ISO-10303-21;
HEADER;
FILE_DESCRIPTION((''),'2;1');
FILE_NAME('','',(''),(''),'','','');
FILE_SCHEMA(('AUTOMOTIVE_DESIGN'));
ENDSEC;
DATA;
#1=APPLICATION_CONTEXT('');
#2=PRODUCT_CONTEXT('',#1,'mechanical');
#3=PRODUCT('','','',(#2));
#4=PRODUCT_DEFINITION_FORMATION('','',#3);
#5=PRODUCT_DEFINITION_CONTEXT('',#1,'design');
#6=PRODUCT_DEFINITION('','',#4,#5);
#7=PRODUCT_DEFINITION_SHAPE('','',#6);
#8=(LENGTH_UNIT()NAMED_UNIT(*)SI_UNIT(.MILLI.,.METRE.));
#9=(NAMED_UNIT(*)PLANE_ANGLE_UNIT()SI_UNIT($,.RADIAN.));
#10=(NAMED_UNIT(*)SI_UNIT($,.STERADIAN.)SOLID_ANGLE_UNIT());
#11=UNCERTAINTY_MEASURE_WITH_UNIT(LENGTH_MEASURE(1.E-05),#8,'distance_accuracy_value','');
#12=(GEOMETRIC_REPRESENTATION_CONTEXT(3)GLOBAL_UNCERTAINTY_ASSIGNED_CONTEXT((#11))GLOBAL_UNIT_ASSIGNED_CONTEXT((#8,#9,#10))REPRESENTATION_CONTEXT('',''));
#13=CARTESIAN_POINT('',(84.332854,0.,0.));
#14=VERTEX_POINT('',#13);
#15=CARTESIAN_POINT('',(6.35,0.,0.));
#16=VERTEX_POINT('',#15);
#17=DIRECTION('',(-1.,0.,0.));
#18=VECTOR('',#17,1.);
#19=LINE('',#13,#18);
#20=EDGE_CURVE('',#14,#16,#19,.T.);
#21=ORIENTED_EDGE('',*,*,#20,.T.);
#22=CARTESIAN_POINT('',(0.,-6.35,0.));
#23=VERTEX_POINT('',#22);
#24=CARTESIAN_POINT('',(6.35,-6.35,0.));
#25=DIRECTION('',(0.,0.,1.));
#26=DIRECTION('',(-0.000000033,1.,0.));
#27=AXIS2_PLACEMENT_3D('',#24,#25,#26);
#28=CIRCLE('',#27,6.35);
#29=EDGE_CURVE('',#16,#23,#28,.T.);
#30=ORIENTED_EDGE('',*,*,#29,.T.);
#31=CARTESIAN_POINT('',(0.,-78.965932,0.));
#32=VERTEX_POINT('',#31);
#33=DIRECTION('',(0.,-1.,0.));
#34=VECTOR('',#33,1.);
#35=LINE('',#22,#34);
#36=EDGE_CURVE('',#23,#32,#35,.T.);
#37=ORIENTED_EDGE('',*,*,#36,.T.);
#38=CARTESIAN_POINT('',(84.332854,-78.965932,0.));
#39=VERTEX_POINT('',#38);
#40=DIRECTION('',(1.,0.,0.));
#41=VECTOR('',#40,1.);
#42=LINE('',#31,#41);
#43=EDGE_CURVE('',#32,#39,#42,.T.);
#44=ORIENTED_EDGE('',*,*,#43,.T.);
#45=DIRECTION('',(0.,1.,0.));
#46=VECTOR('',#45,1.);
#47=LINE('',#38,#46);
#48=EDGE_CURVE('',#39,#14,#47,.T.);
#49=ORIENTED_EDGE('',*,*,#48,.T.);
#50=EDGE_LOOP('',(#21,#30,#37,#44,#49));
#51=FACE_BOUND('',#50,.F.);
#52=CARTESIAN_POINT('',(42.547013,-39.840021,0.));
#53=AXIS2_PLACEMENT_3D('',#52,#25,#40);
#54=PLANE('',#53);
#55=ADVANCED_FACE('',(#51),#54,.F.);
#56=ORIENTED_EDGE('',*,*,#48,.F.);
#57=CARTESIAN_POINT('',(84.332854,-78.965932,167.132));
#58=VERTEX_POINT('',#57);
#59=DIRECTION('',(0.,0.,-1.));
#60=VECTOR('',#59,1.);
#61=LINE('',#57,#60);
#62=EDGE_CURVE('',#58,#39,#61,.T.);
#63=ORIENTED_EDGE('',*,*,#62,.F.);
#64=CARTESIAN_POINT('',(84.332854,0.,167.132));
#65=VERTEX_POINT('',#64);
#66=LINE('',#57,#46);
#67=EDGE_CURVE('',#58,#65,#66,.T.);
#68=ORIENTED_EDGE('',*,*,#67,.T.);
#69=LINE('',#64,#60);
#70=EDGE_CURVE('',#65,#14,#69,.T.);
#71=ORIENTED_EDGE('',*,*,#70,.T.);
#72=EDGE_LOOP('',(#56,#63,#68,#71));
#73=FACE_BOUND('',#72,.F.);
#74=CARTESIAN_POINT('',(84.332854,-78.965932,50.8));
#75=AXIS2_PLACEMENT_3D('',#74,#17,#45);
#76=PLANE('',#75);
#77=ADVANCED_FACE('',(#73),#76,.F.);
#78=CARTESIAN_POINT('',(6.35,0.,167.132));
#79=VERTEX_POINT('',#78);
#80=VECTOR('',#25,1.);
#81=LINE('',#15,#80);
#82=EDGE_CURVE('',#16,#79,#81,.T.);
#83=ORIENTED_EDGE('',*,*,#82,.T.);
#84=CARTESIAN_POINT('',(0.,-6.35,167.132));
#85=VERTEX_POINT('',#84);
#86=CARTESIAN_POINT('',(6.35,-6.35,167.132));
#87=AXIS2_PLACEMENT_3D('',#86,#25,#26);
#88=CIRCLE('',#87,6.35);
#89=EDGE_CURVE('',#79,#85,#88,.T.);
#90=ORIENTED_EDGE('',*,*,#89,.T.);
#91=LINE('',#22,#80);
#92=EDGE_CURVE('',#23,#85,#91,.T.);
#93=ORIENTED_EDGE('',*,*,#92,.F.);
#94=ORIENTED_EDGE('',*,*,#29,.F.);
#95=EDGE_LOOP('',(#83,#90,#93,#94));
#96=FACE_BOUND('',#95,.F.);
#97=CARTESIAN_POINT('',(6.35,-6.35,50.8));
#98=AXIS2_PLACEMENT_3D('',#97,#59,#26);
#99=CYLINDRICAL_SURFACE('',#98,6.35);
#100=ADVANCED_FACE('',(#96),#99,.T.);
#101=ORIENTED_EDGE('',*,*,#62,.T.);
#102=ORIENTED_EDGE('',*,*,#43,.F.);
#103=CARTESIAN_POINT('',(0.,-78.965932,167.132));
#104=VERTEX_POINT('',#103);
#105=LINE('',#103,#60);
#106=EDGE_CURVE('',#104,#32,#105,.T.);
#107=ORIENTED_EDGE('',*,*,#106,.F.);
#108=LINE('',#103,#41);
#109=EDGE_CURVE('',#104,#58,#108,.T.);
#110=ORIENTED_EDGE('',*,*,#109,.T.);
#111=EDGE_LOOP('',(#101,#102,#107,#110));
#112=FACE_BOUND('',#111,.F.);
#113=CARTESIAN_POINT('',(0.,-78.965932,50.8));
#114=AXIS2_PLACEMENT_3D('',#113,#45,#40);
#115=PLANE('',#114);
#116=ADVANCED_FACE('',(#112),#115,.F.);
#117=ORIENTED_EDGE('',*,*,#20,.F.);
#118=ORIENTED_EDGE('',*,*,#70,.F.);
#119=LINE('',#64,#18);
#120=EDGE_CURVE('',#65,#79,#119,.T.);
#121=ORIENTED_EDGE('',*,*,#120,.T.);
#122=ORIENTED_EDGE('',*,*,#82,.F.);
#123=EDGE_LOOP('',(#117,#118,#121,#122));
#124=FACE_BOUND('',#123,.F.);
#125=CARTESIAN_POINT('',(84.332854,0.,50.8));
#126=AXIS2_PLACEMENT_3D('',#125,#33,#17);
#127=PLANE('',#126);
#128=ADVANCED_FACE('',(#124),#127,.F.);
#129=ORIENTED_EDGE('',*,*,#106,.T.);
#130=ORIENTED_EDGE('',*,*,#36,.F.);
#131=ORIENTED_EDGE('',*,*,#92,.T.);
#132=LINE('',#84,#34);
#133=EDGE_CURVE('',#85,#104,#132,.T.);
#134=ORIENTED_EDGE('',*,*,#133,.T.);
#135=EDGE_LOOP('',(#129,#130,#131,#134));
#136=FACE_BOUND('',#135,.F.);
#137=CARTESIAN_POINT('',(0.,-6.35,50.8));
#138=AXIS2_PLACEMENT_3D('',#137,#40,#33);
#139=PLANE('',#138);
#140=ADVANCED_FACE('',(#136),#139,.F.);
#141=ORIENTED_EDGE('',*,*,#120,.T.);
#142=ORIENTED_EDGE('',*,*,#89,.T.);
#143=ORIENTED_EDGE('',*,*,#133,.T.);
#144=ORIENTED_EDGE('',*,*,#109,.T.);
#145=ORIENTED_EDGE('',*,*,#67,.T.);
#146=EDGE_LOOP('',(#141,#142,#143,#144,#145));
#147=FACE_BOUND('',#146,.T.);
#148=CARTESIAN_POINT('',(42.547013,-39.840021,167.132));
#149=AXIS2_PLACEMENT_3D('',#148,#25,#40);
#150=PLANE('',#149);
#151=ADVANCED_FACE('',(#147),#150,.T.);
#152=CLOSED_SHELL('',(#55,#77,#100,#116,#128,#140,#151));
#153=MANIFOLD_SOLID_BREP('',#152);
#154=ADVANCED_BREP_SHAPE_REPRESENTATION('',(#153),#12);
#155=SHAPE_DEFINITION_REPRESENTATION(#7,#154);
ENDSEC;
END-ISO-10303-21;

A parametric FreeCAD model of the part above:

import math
import FreeCAD as App
import Part
import Sketcher
Q = App.Units.Quantity

doc = App.newDocument("Part")
body = doc.addObject("PartDesign::Body", "Body")

# Sketch on XY plane
sketch1 = body.newObject("Sketcher::SketchObject", "Sketch")
sketch1.AttachmentSupport = (doc.getObject("XY_Plane"), [""])
sketch1.MapMode = "FlatFace"
sketch1.addGeometry([
    Part.LineSegment(App.Vector(84.332854, 0, 0), App.Vector(6.35, 0, 0)),  # 0
    Part.ArcOfCircle(Part.Circle(App.Vector(6.35, -6.35, 0), App.Vector(0, 0, 1), 6.35), math.radians(90.000002), math.radians(179.999998)),  # 1
    Part.LineSegment(App.Vector(0, -6.35, 0), App.Vector(0, -78.965932, 0)),  # 2
    Part.LineSegment(App.Vector(0, -78.965932, 0), App.Vector(84.332854, -78.965932, 0)),  # 3
    Part.LineSegment(App.Vector(84.332854, -78.965932, 0), App.Vector(84.332854, 0, 0)),  # 4
], False)
sketch1.addConstraint([
    Sketcher.Constraint("Tangent", 0, 2, 1, 1),
    Sketcher.Constraint("Tangent", 1, 2, 2, 1),
    Sketcher.Constraint("Coincident", 2, 2, 3, 1),
    Sketcher.Constraint("Coincident", 3, 2, 4, 1),
    Sketcher.Constraint("Coincident", 4, 2, 0, 1),
    Sketcher.Constraint("Horizontal", 0),
    Sketcher.Constraint("Vertical", 2),
    Sketcher.Constraint("Horizontal", 3),
    Sketcher.Constraint("Vertical", 4),
    Sketcher.Constraint("PointOnObject", 0, 2, -1),
    Sketcher.Constraint("PointOnObject", 1, 2, -2),
    Sketcher.Constraint("Radius", 1, Q("0.25 in")),
    Sketcher.Constraint("DistanceY", 2, 2, 2, 1, Q("72.615932 mm")),
    Sketcher.Constraint("DistanceX", 0, 2, 0, 1, Q("77.982854 mm")),
])
pad1 = body.newObject("PartDesign::Pad", "Pad")
pad1.Profile = sketch1
pad1.Length = Q("2 in")

# Sketch on XY plane
sketch2 = body.newObject("Sketcher::SketchObject", "Sketch001")
sketch2.AttachmentSupport = (doc.getObject("XY_Plane"), [""])
sketch2.MapMode = "FlatFace"
sketch2.AttachmentOffset = App.Placement(App.Vector(0, 0, 2 * 25.4), App.Rotation())
sketch2.addGeometry([
    Part.LineSegment(App.Vector(84.332854, 0, 0), App.Vector(6.35, 0, 0)),  # 0
    Part.ArcOfCircle(Part.Circle(App.Vector(6.35, -6.35, 0), App.Vector(0, 0, 1), 6.35), math.radians(90.000002), math.radians(179.999998)),  # 1
    Part.LineSegment(App.Vector(0, -6.35, 0), App.Vector(0, -78.965932, 0)),  # 2
    Part.LineSegment(App.Vector(0, -78.965932, 0), App.Vector(84.332854, -78.965932, 0)),  # 3
    Part.LineSegment(App.Vector(84.332854, -78.965932, 0), App.Vector(84.332854, 0, 0)),  # 4
], False)
sketch2.addConstraint([
    Sketcher.Constraint("Tangent", 0, 2, 1, 1),
    Sketcher.Constraint("Tangent", 1, 2, 2, 1),
    Sketcher.Constraint("Coincident", 2, 2, 3, 1),
    Sketcher.Constraint("Coincident", 3, 2, 4, 1),
    Sketcher.Constraint("Coincident", 4, 2, 0, 1),
    Sketcher.Constraint("Horizontal", 0),
    Sketcher.Constraint("Vertical", 2),
    Sketcher.Constraint("Horizontal", 3),
    Sketcher.Constraint("Vertical", 4),
    Sketcher.Constraint("PointOnObject", 0, 2, -1),
    Sketcher.Constraint("PointOnObject", 1, 2, -2),
    Sketcher.Constraint("Radius", 1, Q("0.25 in")),
    Sketcher.Constraint("DistanceY", 2, 2, 2, 1, Q("72.615932 mm")),
    Sketcher.Constraint("DistanceX", 0, 2, 0, 1, Q("77.982854 mm")),
])
pad2 = body.newObject("PartDesign::Pad", "Pad001")
pad2.Profile = sketch2
pad2.Length = Q("4.58 in")

doc.recompute()
